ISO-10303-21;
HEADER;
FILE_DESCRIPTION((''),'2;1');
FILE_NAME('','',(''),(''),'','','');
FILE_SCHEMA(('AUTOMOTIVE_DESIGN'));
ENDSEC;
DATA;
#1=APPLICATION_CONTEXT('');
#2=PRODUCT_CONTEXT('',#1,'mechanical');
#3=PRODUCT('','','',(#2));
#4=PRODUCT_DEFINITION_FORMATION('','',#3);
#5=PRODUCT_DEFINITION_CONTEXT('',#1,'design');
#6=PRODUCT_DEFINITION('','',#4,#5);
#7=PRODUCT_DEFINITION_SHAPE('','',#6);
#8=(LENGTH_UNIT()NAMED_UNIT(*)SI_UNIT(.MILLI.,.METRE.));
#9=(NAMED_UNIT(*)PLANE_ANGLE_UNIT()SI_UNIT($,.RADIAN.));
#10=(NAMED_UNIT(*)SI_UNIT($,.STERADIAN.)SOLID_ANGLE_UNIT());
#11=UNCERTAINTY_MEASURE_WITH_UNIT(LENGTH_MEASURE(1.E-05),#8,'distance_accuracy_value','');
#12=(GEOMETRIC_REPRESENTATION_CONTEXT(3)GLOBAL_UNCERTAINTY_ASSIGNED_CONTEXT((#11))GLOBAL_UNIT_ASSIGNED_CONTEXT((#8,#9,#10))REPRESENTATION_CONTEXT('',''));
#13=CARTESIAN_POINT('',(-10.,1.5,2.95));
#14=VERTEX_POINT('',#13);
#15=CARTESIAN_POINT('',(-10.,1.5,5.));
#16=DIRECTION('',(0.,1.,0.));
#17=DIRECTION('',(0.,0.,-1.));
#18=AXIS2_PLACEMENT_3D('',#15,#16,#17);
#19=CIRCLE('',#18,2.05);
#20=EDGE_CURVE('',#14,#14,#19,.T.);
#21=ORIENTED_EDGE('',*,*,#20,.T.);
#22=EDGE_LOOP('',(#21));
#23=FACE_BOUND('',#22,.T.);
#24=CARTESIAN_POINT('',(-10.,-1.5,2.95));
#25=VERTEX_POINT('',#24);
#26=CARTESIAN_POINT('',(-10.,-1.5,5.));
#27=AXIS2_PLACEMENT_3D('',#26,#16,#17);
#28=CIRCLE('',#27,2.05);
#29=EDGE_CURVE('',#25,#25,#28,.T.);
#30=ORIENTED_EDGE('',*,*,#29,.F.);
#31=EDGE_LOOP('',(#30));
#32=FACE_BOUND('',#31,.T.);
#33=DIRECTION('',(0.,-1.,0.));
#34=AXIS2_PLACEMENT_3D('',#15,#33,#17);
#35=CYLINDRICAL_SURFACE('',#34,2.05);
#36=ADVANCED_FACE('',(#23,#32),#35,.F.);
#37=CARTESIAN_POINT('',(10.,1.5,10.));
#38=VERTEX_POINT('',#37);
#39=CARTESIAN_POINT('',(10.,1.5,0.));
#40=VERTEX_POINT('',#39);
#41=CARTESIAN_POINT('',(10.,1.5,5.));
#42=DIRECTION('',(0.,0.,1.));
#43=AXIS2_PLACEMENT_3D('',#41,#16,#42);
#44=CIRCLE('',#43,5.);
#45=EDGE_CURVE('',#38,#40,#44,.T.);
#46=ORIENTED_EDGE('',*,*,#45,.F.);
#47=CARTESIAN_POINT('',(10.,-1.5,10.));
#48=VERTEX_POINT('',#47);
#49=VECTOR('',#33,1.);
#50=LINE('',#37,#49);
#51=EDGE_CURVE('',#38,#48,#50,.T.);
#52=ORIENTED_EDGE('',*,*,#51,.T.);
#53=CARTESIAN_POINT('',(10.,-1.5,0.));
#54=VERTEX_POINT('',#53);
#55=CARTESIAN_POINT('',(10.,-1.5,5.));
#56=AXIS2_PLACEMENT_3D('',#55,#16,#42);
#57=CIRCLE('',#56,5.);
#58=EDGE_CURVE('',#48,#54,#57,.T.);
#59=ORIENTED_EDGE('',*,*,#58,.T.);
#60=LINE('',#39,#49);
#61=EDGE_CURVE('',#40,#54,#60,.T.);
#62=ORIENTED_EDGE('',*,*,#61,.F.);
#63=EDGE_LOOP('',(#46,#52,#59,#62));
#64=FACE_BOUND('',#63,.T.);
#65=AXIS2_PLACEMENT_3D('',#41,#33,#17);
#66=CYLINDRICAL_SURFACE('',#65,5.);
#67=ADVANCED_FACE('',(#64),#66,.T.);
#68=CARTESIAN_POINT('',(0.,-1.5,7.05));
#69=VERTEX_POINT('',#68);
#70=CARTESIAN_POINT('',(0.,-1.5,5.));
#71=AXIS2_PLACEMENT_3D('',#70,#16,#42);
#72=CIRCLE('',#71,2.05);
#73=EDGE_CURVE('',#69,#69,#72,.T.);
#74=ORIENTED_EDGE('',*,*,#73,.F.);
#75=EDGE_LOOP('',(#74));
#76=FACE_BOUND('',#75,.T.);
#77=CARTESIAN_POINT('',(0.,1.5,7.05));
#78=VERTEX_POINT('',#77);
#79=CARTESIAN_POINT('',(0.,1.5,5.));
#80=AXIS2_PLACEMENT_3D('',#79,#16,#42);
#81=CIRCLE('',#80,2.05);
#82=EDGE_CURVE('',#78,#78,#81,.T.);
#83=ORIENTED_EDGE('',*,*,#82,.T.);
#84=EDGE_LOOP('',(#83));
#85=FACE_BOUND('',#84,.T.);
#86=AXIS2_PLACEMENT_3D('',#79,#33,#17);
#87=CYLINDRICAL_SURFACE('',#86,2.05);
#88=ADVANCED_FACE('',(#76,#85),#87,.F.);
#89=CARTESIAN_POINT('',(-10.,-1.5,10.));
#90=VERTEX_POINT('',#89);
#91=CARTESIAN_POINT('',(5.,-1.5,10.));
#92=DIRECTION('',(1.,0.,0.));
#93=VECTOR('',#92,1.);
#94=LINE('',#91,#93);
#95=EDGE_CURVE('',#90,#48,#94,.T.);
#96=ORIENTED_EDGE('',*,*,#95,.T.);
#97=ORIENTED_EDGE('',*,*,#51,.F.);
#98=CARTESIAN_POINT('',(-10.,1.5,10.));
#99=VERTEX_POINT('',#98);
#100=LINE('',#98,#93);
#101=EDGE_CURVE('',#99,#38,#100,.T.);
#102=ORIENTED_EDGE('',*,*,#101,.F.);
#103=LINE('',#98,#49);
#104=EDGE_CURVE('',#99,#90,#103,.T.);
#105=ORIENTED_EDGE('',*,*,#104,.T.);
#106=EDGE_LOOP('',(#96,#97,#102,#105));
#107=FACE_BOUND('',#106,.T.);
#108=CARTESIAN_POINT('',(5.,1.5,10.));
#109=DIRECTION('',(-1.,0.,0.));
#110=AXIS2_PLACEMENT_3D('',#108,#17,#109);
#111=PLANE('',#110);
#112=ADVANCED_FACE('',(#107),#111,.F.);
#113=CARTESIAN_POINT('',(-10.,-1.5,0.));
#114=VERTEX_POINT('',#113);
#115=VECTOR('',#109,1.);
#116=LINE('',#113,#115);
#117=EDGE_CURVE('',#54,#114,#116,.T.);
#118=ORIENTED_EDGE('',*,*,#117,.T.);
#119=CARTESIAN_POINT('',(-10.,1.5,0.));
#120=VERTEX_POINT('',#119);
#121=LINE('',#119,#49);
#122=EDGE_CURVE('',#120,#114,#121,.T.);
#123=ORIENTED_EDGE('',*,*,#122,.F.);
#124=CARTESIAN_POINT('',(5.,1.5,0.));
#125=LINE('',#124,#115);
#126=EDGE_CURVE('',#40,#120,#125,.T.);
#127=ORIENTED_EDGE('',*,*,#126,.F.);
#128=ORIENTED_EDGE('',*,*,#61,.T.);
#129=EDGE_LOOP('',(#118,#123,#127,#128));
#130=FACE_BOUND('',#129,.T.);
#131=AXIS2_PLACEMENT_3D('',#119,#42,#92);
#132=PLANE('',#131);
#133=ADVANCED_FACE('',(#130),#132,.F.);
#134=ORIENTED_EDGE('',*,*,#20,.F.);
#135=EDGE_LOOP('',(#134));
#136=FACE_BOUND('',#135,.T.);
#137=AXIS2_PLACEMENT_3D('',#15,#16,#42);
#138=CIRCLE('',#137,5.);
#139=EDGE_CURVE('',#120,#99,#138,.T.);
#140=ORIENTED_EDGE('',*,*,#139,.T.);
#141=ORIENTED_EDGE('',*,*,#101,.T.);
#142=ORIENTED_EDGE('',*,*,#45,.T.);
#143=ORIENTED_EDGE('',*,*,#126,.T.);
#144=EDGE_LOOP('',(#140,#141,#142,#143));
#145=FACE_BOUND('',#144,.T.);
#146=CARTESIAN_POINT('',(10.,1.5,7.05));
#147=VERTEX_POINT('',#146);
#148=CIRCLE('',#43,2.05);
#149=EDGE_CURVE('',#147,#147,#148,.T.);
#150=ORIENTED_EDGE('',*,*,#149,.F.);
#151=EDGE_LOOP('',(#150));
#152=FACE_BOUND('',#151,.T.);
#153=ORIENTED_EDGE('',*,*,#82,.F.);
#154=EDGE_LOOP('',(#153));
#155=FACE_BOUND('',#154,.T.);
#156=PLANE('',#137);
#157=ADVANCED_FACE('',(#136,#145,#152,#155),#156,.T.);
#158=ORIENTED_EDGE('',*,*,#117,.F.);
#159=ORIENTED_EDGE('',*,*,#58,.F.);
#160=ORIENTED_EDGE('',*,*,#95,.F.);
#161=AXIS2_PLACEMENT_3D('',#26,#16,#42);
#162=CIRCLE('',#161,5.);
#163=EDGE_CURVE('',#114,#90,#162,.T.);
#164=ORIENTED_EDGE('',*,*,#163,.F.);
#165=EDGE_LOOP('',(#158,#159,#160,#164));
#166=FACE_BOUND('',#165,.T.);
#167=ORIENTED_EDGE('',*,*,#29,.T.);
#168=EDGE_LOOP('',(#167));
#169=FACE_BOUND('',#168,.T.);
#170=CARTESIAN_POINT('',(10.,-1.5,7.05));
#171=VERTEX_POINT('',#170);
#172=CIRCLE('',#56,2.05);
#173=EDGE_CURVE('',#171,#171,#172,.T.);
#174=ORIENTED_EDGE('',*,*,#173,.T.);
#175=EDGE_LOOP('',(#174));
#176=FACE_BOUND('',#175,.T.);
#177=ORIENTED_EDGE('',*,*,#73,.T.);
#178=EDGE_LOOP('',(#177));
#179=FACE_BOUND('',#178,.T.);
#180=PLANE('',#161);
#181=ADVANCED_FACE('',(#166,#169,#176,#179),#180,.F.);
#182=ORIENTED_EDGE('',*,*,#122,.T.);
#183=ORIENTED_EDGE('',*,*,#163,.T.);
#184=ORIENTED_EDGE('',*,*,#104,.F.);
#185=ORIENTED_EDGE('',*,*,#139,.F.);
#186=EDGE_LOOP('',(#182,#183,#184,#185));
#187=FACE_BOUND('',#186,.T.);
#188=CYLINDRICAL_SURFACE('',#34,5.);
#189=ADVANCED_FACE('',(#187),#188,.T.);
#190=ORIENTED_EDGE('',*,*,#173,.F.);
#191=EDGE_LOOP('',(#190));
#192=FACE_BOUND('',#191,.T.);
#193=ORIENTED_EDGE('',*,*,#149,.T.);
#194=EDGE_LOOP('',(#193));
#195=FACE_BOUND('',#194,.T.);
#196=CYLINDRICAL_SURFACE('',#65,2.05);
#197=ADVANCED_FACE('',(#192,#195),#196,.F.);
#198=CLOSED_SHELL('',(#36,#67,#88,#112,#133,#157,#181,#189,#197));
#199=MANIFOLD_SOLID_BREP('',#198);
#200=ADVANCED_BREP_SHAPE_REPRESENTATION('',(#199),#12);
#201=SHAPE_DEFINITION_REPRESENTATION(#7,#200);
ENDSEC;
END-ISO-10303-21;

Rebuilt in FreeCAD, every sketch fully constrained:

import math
import FreeCAD as App
import Part
import Sketcher

V = App.Vector
Q = App.Units.Quantity

doc = App.newDocument("Part")
body = doc.addObject("PartDesign::Body", "Body")

# Sketch on XZ plane
sketch1 = body.newObject("Sketcher::SketchObject", "Sketch")
sketch1.AttachmentSupport = (doc.getObject("XZ_Plane"), [""])
sketch1.MapMode = "FlatFace"
sketch1.addGeometry(Part.LineSegment(V(10, 0, 0), V(-10, 0, 0)), False)
sketch1.addGeometry(Part.ArcOfCircle(Part.Circle(V(-10, 5, 0), V(0, 0, 1), 5), math.radians(90), math.radians(270)), False)
sketch1.addGeometry(Part.LineSegment(V(-10, 10, 0), V(10, 10, 0)), False)
sketch1.addGeometry(Part.ArcOfCircle(Part.Circle(V(10, 5, 0), V(0, 0, 1), 5), math.radians(-90), math.radians(90)), False)
sketch1.addGeometry(Part.Circle(V(10, 5, 0), V(0, 0, 1), 2.05), False)
sketch1.addGeometry(Part.Circle(V(0, 5, 0), V(0, 0, 1), 2.05), False)
sketch1.addGeometry(Part.Circle(V(-10, 5, 0), V(0, 0, 1), 2.05), False)
sketch1.addConstraint(Sketcher.Constraint("Tangent", 0, 2, 1, 2))
sketch1.addConstraint(Sketcher.Constraint("Tangent", 1, 1, 2, 1))
sketch1.addConstraint(Sketcher.Constraint("Tangent", 2, 2, 3, 2))
sketch1.addConstraint(Sketcher.Constraint("Tangent", 3, 1, 0, 1))
sketch1.addConstraint(Sketcher.Constraint("Horizontal", 0))
sketch1.addConstraint(Sketcher.Constraint("Horizontal", 2))
sketch1.addConstraint(Sketcher.Constraint("Coincident", 4, 3, 3, 3))
sketch1.addConstraint(Sketcher.Constraint("Coincident", 6, 3, 1, 3))
sketch1.addConstraint(Sketcher.Constraint("Equal", 4, 5))
sketch1.addConstraint(Sketcher.Constraint("Equal", 5, 6))
sketch1.addConstraint(Sketcher.Constraint("Symmetric", 0, 2, 3, 1, -1, 1))
sketch1.addConstraint(Sketcher.Constraint("PointOnObject", 5, 3, -2))
sketch1.addConstraint(Sketcher.Constraint("Horizontal", 4, 3, 5, 3))
sketch1.addConstraint(Sketcher.Constraint("Radius", 1, Q("5 mm")))
sketch1.addConstraint(Sketcher.Constraint("Diameter", 4, Q("4.1 mm")))
sketch1.addConstraint(Sketcher.Constraint("DistanceX", 0, 2, 0, 1, Q("20 mm")))
pad1 = body.newObject("PartDesign::Pad", "Pad")
pad1.Profile = sketch1
pad1.Length = 3
pad1.Midplane = True

doc.recompute()
